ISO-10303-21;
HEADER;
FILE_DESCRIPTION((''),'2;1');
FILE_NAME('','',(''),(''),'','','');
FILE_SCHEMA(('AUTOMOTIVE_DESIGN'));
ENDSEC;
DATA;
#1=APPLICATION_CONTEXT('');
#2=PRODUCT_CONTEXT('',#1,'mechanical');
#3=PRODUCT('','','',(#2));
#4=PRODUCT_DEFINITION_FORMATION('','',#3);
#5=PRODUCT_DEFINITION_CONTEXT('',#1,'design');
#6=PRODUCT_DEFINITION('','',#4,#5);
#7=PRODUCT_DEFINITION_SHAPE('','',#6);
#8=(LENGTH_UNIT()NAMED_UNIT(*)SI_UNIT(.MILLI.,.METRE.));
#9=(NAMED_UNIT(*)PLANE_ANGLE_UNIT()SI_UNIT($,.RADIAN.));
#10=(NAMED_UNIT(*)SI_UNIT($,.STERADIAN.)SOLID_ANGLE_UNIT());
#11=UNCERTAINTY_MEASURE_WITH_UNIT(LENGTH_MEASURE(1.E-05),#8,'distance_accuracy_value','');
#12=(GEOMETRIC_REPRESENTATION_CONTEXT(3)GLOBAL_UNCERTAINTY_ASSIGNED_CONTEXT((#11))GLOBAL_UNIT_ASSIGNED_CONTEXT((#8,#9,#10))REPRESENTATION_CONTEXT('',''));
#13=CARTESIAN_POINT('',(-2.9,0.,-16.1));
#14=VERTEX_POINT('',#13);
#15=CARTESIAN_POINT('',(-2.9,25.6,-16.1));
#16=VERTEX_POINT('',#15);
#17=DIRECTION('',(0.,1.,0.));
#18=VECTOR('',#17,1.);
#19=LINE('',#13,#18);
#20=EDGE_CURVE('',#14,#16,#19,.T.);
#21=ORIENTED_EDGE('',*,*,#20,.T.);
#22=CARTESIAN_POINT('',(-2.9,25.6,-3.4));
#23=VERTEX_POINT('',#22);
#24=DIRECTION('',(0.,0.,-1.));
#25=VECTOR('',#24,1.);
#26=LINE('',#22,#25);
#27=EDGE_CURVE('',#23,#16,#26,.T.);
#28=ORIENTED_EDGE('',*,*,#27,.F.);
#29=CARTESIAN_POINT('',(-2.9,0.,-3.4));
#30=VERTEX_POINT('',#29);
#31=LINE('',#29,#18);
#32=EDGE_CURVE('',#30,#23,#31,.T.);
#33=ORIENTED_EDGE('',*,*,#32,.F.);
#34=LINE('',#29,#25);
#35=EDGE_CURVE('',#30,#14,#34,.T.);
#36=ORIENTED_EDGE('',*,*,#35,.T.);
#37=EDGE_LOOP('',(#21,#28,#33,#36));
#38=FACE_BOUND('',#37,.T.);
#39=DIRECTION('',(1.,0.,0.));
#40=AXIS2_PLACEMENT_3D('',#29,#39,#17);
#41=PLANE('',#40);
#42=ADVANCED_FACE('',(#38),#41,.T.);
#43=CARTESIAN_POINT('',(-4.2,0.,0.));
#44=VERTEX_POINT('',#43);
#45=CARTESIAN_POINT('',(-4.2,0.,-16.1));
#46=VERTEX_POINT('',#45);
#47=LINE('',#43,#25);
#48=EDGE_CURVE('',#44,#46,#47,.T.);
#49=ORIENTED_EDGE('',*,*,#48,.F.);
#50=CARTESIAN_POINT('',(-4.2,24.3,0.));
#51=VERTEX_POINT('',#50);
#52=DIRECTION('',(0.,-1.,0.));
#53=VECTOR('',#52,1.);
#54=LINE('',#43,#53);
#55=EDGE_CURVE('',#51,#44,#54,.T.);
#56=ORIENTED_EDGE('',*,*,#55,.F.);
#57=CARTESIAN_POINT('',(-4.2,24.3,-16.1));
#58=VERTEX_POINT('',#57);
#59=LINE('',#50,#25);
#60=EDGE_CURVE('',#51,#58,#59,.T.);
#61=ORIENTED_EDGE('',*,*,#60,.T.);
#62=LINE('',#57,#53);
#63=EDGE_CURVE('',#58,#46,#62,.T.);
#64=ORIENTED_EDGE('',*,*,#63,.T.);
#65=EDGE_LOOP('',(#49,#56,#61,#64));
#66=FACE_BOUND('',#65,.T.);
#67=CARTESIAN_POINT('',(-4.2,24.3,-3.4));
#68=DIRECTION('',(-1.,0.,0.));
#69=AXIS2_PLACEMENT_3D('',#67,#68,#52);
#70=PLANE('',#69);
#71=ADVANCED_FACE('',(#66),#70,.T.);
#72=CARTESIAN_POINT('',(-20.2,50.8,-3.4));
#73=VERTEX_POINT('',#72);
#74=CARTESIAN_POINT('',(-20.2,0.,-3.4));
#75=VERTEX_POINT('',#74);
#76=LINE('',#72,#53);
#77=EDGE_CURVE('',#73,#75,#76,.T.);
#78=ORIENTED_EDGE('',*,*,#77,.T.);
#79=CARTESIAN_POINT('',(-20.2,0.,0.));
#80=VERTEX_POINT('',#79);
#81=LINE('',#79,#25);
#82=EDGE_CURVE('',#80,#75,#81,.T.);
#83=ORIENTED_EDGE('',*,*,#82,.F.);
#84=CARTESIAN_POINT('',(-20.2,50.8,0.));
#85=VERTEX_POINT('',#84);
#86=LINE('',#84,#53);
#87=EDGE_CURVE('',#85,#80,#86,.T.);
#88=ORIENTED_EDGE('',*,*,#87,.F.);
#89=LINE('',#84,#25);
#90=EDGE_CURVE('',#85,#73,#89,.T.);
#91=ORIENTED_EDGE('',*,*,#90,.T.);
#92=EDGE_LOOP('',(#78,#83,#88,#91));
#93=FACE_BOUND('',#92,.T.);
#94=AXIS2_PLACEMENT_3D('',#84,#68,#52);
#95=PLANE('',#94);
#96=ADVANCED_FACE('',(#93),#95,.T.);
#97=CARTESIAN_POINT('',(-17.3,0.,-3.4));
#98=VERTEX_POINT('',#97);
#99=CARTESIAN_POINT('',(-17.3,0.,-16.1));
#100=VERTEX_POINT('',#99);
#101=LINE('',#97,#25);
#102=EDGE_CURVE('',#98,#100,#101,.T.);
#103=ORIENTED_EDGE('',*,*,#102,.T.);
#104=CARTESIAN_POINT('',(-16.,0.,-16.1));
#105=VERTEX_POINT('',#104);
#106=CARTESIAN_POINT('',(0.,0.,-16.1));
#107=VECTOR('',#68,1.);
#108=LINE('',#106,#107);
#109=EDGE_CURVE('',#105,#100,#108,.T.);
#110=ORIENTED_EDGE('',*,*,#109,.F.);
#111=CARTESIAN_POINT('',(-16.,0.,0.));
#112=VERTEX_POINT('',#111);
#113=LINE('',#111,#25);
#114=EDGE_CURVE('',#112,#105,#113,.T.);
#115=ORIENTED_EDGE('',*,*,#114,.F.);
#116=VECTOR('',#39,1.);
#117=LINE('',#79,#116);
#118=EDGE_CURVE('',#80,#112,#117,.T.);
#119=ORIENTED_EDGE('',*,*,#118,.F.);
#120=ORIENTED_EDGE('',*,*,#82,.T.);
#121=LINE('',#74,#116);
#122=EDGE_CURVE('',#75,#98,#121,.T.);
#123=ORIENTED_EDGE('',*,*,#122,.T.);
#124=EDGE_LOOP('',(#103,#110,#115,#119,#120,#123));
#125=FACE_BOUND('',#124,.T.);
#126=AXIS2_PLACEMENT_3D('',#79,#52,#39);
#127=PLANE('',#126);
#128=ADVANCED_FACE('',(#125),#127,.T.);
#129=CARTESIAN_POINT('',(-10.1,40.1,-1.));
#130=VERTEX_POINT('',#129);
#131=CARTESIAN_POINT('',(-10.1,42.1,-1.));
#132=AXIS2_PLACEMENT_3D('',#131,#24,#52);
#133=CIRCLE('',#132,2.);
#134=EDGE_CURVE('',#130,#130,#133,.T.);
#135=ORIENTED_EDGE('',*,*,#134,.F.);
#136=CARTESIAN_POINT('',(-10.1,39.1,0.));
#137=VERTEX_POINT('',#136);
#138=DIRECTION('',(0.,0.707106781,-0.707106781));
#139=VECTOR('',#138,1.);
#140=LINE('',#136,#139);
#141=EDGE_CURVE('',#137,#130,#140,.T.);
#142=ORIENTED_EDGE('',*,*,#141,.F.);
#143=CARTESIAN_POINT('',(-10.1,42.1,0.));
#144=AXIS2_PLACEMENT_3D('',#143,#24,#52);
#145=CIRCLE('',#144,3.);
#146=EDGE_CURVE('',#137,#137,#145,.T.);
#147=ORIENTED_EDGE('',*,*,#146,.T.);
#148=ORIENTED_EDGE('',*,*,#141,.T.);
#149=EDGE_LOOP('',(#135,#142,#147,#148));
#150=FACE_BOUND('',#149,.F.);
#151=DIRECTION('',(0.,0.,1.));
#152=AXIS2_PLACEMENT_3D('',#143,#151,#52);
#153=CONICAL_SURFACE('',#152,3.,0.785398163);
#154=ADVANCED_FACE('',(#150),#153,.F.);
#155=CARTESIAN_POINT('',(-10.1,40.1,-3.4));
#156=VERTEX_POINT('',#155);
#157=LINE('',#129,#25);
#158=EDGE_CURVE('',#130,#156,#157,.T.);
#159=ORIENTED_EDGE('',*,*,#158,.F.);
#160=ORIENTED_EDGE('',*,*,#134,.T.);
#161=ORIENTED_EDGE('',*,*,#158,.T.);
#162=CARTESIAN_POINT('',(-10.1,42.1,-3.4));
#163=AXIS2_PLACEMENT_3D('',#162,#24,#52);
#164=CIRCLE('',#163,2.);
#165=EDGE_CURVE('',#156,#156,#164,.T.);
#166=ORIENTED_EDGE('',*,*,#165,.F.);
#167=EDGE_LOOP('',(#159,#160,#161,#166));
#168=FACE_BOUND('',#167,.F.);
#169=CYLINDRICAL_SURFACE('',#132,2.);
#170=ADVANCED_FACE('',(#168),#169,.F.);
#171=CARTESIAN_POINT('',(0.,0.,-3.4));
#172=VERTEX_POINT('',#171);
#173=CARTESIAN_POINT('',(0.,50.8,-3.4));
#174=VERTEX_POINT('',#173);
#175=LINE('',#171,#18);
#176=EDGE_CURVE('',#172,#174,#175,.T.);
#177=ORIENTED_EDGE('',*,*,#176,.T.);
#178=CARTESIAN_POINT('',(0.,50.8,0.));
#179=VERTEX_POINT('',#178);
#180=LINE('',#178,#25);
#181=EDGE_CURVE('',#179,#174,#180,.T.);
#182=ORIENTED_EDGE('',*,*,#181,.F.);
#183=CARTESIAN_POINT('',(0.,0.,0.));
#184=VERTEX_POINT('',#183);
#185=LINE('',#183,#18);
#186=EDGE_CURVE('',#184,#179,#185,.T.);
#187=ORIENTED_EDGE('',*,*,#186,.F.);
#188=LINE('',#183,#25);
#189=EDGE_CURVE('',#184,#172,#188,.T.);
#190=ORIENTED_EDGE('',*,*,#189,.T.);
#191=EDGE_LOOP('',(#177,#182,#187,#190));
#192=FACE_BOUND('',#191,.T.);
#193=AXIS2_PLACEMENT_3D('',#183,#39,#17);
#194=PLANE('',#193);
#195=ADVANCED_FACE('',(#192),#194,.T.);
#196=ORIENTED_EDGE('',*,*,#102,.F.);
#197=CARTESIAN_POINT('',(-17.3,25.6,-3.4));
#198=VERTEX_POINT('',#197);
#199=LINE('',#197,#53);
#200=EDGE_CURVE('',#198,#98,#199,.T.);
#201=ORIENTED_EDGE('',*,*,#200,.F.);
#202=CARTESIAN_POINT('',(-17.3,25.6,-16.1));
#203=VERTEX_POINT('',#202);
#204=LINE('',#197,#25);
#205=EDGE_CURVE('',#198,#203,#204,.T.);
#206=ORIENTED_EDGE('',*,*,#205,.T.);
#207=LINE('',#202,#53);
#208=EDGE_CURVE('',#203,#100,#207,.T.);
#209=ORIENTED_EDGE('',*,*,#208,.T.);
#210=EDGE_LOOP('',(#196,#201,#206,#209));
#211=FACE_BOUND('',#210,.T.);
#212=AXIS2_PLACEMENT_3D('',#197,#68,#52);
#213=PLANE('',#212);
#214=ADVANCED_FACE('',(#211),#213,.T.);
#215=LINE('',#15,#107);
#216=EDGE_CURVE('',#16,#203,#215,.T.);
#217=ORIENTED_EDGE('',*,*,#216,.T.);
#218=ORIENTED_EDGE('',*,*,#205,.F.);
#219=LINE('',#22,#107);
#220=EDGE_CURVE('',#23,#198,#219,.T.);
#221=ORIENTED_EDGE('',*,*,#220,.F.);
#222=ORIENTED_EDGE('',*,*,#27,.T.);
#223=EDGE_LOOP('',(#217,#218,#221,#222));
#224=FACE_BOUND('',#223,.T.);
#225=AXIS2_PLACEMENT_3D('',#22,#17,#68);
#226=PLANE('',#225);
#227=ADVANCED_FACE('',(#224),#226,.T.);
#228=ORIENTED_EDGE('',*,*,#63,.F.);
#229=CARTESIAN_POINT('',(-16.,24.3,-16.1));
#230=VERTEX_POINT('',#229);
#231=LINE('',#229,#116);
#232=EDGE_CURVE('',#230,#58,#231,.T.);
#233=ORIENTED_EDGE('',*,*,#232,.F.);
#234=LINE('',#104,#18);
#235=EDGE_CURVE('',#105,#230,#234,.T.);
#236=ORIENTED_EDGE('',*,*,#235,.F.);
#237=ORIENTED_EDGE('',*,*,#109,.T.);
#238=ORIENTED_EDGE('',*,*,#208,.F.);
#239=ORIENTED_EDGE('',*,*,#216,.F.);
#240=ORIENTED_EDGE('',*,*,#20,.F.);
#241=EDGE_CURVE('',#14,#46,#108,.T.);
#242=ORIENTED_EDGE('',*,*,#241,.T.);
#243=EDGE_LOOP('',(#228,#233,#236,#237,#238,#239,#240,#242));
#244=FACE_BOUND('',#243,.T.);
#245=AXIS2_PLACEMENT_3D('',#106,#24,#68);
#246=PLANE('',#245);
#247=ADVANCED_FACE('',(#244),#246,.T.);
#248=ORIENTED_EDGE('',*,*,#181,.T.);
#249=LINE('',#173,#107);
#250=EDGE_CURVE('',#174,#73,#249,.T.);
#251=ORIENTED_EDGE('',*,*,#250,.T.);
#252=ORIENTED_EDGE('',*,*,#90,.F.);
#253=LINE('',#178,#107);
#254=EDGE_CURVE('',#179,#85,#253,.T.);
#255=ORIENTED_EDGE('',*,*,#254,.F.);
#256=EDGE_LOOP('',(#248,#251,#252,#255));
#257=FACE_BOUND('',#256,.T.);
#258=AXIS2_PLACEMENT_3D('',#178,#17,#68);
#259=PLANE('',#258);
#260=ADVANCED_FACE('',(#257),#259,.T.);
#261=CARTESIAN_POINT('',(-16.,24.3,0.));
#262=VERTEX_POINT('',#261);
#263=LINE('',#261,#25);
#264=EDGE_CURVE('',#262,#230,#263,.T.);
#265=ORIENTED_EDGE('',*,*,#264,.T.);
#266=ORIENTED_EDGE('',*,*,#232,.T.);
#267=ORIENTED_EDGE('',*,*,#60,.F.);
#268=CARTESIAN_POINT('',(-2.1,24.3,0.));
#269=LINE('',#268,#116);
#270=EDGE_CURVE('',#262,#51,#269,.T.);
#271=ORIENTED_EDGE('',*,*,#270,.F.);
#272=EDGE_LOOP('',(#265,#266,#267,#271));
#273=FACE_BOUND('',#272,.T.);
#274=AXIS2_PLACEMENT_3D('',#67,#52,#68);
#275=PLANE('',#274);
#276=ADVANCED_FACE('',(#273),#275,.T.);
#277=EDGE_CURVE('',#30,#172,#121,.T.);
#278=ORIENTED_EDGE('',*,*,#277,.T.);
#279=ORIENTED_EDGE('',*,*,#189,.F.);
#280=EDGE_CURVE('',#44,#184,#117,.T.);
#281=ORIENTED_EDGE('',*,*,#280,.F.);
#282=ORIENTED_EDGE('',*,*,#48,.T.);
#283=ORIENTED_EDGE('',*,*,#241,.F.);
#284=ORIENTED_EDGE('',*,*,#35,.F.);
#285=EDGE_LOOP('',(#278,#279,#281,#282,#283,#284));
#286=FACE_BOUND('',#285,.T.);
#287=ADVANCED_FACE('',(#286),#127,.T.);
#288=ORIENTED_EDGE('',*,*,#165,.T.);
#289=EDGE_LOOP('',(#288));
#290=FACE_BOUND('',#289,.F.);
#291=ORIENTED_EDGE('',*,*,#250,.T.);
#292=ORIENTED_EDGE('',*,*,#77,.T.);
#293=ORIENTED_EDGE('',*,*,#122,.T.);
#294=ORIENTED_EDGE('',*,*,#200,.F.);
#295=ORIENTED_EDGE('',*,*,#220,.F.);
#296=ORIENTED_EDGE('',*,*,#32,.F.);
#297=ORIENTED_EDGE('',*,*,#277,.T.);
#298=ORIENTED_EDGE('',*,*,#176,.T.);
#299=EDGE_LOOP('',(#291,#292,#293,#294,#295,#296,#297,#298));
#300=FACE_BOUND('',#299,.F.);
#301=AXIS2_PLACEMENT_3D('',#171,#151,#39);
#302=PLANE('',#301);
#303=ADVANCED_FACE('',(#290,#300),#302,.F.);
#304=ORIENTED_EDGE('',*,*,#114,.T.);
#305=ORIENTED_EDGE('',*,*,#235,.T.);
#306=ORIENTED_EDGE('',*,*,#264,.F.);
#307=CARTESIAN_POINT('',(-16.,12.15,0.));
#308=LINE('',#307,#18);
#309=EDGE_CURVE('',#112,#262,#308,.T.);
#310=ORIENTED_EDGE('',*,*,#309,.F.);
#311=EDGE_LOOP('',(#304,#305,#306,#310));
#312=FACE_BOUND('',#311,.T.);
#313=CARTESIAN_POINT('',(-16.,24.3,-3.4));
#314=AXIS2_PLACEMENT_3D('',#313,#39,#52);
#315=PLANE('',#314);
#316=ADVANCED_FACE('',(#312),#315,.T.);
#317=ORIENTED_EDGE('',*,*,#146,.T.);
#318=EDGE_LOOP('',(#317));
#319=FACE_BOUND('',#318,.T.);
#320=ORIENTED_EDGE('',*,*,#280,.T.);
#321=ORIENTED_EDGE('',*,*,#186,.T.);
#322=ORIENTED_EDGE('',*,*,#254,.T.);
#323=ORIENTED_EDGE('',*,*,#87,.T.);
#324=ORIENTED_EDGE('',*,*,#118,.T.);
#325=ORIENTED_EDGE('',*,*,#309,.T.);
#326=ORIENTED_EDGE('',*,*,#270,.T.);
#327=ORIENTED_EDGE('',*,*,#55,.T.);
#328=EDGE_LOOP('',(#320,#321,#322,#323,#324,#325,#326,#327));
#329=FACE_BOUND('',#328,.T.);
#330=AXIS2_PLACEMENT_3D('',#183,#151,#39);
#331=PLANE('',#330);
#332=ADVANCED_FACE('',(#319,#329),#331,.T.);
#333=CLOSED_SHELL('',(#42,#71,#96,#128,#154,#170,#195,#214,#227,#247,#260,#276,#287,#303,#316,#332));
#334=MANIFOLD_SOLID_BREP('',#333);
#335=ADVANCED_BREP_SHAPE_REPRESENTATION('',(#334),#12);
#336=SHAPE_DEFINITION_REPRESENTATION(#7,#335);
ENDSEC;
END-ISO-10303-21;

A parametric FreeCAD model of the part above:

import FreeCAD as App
import Part
import Sketcher
from FreeCAD import Vector
Q = App.Units.Quantity


def add_polygon(sketch, points):
    """Adds a closed chain of lines whose ends are joined by coincident constraints."""
    first, n = sketch.GeometryCount, len(points)
    for a, b in zip(points, points[1:] + points[:1]):
        sketch.addGeometry(Part.LineSegment(App.Vector(*a, 0), App.Vector(*b, 0)), False)
    for i in range(n):
        sketch.addConstraint(Sketcher.Constraint("Coincident", first + i, 2, first + (i + 1) % n, 1))

doc = App.newDocument("Part")
body = doc.addObject("PartDesign::Body", "Body")

# Sketch on XY plane
sketch1 = body.newObject("Sketcher::SketchObject", "Sketch")
sketch1.AttachmentSupport = (doc.getObject("XY_Plane"), [""])
sketch1.MapMode = "FlatFace"
add_polygon(sketch1, [(0, 0), (0, 51), (-20, 51), (-20, 0)])  # lines 0-3
sketch1.addConstraint(Sketcher.Constraint("Vertical", 0))
sketch1.addConstraint(Sketcher.Constraint("Horizontal", 1))
sketch1.addConstraint(Sketcher.Constraint("Vertical", 2))
sketch1.addConstraint(Sketcher.Constraint("Horizontal", 3))
sketch1.addConstraint(Sketcher.Constraint("Coincident", 3, 2, -1, 1))
sketch1.addConstraint(Sketcher.Constraint("DistanceX", 1, 2, 1, 1, Q("20.2 mm")))
sketch1.addConstraint(Sketcher.Constraint("DistanceY", 0, 1, 0, 2, Q("50.8 mm")))
pad1 = body.newObject("PartDesign::Pad", "Pad")
pad1.Profile = sketch1
pad1.Length = 3.4
pad1.Reversed = True

# Sketch on XY plane
sketch2 = body.newObject("Sketcher::SketchObject", "Sketch001")
sketch2.AttachmentSupport = (doc.getObject("XY_Plane"), [""])
sketch2.MapMode = "FlatFace"
sketch2.addGeometry(Part.Circle(Vector(-10.1, 42.1, 0), Vector(0, 0, 1), 2), False)
sketch2.addConstraint(Sketcher.Constraint("Diameter", 0, Q("4 mm")))
sketch2.addConstraint(Sketcher.Constraint("DistanceX", 0, 3, -1, 1, Q("10.1 mm")))
sketch2.addConstraint(Sketcher.Constraint("DistanceY", -1, 1, 0, 3, Q("42.1 mm")))
doc.recompute()
hole = body.newObject("PartDesign::Hole", "Hole")
hole.Profile = sketch2
hole.ThreadType = "None"
hole.Diameter = 4
hole.DepthType = "ThroughAll"
hole.HoleCutType = "Countersink"
hole.HoleCutDiameter = 6
hole.HoleCutCountersinkAngle = 90

# Sketch on XY plane
sketch3 = body.newObject("Sketcher::SketchObject", "Sketch002")
sketch3.AttachmentSupport = (doc.getObject("XY_Plane"), [""])
sketch3.MapMode = "FlatFace"
sketch3.AttachmentOffset = App.Placement(Vector(0, 0, -3.4), App.Rotation())
add_polygon(sketch3, [(-2.9, 25.6), (-2.9, 0), (-4.2, 0), (-4.2, 24.3), (-16, 24.3), (-16, 0), (-17.3, 0), (-17.3, 25.6)])  # lines 0-7
sketch3.addConstraint(Sketcher.Constraint("Vertical", 0))
sketch3.addConstraint(Sketcher.Constraint("Horizontal", 1))
sketch3.addConstraint(Sketcher.Constraint("Vertical", 2))
sketch3.addConstraint(Sketcher.Constraint("Horizontal", 3))
sketch3.addConstraint(Sketcher.Constraint("Vertical", 4))
sketch3.addConstraint(Sketcher.Constraint("Horizontal", 5))
sketch3.addConstraint(Sketcher.Constraint("Vertical", 6))
sketch3.addConstraint(Sketcher.Constraint("Horizontal", 7))
sketch3.addConstraint(Sketcher.Constraint("PointOnObject", 0, 2, -1))
sketch3.addConstraint(Sketcher.Constraint("PointOnObject", 4, 2, -1))
sketch3.addConstraint(Sketcher.Constraint("Equal", 1, 5))
sketch3.addConstraint(Sketcher.Constraint("DistanceX", 1, 2, 1, 1, Q("1.3 mm")))
sketch3.addConstraint(Sketcher.Constraint("DistanceX", 7, 1, 7, 2, Q("14.4 mm")))
sketch3.addConstraint(Sketcher.Constraint("DistanceY", 0, 2, 0, 1, Q("25.6 mm")))
sketch3.addConstraint(Sketcher.Constraint("DistanceX", 0, 2, -1, 1, Q("2.9 mm")))
sketch3.addConstraint(Sketcher.Constraint("DistanceY", 3, 2, 6, 2, Q("1.3 mm")))
pad2 = body.newObject("PartDesign::Pad", "Pad001")
pad2.Profile = sketch3
pad2.Length = 12.7
pad2.Reversed = True

# Sketch on XY plane
sketch4 = body.newObject("Sketcher::SketchObject", "Sketch003")
sketch4.AttachmentSupport = (doc.getObject("XY_Plane"), [""])
sketch4.MapMode = "FlatFace"
sketch4.AttachmentOffset = App.Placement(Vector(0, 0, -3.4), App.Rotation())
add_polygon(sketch4, [(-16, 0), (-16, 24), (-4, 24), (-4, 0)])  # lines 0-3
sketch4.addConstraint(Sketcher.Constraint("Vertical", 0))
sketch4.addConstraint(Sketcher.Constraint("Horizontal", 1))
sketch4.addConstraint(Sketcher.Constraint("Vertical", 2))
sketch4.addConstraint(Sketcher.Constraint("Horizontal", 3))
sketch4.addConstraint(Sketcher.Constraint("PointOnObject", 2, 2, -1))
sketch4.addConstraint(Sketcher.Constraint("DistanceX", 1, 1, 1, 2, Q("11.8 mm")))
sketch4.addConstraint(Sketcher.Constraint("DistanceY", 0, 1, 0, 2, Q("24.3 mm")))
sketch4.addConstraint(Sketcher.Constraint("DistanceX", 0, 2, -1, 1, Q("16 mm")))
pocket1 = body.newObject("PartDesign::Pocket", "Pocket")
pocket1.Profile = sketch4
pocket1.Length = 10
pocket1.Reversed = True

doc.recompute()
